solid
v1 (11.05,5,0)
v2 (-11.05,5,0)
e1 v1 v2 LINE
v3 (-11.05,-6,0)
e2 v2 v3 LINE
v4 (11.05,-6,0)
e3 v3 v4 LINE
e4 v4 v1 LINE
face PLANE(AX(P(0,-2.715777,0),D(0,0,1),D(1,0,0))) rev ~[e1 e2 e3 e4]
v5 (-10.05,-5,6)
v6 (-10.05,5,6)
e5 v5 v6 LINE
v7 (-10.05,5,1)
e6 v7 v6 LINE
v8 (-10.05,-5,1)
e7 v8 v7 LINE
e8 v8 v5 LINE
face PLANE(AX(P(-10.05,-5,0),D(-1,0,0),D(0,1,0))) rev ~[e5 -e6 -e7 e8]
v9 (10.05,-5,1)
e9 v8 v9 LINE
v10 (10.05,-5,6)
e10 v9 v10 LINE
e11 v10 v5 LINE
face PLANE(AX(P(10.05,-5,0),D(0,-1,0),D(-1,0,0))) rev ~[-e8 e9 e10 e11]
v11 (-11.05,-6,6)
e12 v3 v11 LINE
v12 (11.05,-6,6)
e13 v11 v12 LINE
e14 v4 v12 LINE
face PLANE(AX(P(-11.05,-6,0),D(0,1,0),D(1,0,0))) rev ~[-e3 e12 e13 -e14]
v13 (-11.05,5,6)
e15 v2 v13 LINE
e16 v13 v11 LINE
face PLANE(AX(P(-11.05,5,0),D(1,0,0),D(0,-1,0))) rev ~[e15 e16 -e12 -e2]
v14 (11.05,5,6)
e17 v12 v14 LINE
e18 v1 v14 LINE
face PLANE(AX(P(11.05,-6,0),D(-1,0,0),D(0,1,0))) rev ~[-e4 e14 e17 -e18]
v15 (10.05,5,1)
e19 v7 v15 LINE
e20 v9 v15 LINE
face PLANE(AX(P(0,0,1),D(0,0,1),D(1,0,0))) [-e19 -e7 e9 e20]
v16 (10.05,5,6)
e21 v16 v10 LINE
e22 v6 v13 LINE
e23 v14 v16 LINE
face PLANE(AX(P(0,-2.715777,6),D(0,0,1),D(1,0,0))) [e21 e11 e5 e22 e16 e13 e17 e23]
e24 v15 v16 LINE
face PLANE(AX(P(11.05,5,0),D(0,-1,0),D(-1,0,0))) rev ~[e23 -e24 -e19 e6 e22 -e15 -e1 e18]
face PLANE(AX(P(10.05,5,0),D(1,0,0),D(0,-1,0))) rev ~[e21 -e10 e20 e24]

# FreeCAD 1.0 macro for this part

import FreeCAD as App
import Part
import Sketcher

doc = App.newDocument("Part")
body = doc.addObject("PartDesign::Body", "Body")

# Sketch on XY plane
sketch1 = doc.addObject("Sketcher::SketchObject", "Sketch")
body.addObject(sketch1)
sketch1.AttachmentSupport = (doc.XY_Plane, [""])
sketch1.MapMode = "FlatFace"
sketch1.addGeometry([
    Part.LineSegment(App.Vector(-10, 5, 0), App.Vector(-10, -5, 0)),
    Part.LineSegment(App.Vector(-10, -5, 0), App.Vector(10, -5, 0)),
    Part.LineSegment(App.Vector(10, -5, 0), App.Vector(10, 5, 0)),
    Part.LineSegment(App.Vector(10, 5, 0), App.Vector(-10, 5, 0)),
], False)
sketch1.addConstraint([
    Sketcher.Constraint("Coincident", 0, 2, 1, 1),
    Sketcher.Constraint("Coincident", 1, 2, 2, 1),
    Sketcher.Constraint("Coincident", 2, 2, 3, 1),
    Sketcher.Constraint("Coincident", 3, 2, 0, 1),
    Sketcher.Constraint("Vertical", 0),
    Sketcher.Constraint("Horizontal", 1),
    Sketcher.Constraint("Vertical", 2),
    Sketcher.Constraint("Horizontal", 3),
    Sketcher.Constraint("Symmetric", 0, 2, 2, 2, -1, 1),
    Sketcher.Constraint("DistanceY", 0, 2, 0, 1, 10.0),
    Sketcher.Constraint("DistanceX", 1, 1, 1, 2, 20.1),
])
pad1 = doc.addObject("PartDesign::Pad", "Pad")
body.addObject(pad1)
pad1.Profile = sketch1
pad1.Length = 1

# Sketch on XY plane
sketch2 = doc.addObject("Sketcher::SketchObject", "Sketch001")
body.addObject(sketch2)
sketch2.AttachmentSupport = (doc.XY_Plane, [""])
sketch2.MapMode = "FlatFace"
sketch2.addGeometry([
    Part.LineSegment(App.Vector(10.1, 5, 0), App.Vector(10.1, -5, 0)),  # 0
    Part.LineSegment(App.Vector(10.1, -5, 0), App.Vector(-10.1, -5, 0)),  # 1
    Part.LineSegment(App.Vector(-10.1, -5, 0), App.Vector(-10.1, 5, 0)),  # 2
    Part.LineSegment(App.Vector(-10.1, 5, 0), App.Vector(-11.1, 5, 0)),  # 3
    Part.LineSegment(App.Vector(-11.1, 5, 0), App.Vector(-11.1, -6, 0)),  # 4
    Part.LineSegment(App.Vector(-11.1, -6, 0), App.Vector(11.1, -6, 0)),  # 5
    Part.LineSegment(App.Vector(11.1, -6, 0), App.Vector(11.1, 5, 0)),  # 6
    Part.LineSegment(App.Vector(11.1, 5, 0), App.Vector(10.1, 5, 0)),  # 7
], False)
sketch2.addConstraint([
    Sketcher.Constraint("Coincident", 0, 2, 1, 1),
    Sketcher.Constraint("Coincident", 1, 2, 2, 1),
    Sketcher.Constraint("Coincident", 2, 2, 3, 1),
    Sketcher.Constraint("Coincident", 3, 2, 4, 1),
    Sketcher.Constraint("Coincident", 4, 2, 5, 1),
    Sketcher.Constraint("Coincident", 5, 2, 6, 1),
    Sketcher.Constraint("Coincident", 6, 2, 7, 1),
    Sketcher.Constraint("Coincident", 7, 2, 0, 1),
    Sketcher.Constraint("Vertical", 0),
    Sketcher.Constraint("Horizontal", 1),
    Sketcher.Constraint("Vertical", 2),
    Sketcher.Constraint("Horizontal", 3),
    Sketcher.Constraint("Vertical", 4),
    Sketcher.Constraint("Horizontal", 5),
    Sketcher.Constraint("Vertical", 6),
    Sketcher.Constraint("Horizontal", 7),
    Sketcher.Constraint("Symmetric", 0, 2, 2, 2, -1, 1),
    Sketcher.Constraint("Symmetric", 3, 2, 6, 2, -2),
    Sketcher.Constraint("DistanceX", 3, 2, 3, 1, 1.0),
    Sketcher.Constraint("DistanceY", 0, 2, 0, 1, 10.0),
    Sketcher.Constraint("DistanceY", 4, 2, 4, 1, 11.0),
    Sketcher.Constraint("DistanceX", 1, 2, 1, 1, 20.1),
])
pad2 = doc.addObject("PartDesign::Pad", "Pad001")
body.addObject(pad2)
pad2.Profile = sketch2
pad2.Length = 6

doc.recompute()
